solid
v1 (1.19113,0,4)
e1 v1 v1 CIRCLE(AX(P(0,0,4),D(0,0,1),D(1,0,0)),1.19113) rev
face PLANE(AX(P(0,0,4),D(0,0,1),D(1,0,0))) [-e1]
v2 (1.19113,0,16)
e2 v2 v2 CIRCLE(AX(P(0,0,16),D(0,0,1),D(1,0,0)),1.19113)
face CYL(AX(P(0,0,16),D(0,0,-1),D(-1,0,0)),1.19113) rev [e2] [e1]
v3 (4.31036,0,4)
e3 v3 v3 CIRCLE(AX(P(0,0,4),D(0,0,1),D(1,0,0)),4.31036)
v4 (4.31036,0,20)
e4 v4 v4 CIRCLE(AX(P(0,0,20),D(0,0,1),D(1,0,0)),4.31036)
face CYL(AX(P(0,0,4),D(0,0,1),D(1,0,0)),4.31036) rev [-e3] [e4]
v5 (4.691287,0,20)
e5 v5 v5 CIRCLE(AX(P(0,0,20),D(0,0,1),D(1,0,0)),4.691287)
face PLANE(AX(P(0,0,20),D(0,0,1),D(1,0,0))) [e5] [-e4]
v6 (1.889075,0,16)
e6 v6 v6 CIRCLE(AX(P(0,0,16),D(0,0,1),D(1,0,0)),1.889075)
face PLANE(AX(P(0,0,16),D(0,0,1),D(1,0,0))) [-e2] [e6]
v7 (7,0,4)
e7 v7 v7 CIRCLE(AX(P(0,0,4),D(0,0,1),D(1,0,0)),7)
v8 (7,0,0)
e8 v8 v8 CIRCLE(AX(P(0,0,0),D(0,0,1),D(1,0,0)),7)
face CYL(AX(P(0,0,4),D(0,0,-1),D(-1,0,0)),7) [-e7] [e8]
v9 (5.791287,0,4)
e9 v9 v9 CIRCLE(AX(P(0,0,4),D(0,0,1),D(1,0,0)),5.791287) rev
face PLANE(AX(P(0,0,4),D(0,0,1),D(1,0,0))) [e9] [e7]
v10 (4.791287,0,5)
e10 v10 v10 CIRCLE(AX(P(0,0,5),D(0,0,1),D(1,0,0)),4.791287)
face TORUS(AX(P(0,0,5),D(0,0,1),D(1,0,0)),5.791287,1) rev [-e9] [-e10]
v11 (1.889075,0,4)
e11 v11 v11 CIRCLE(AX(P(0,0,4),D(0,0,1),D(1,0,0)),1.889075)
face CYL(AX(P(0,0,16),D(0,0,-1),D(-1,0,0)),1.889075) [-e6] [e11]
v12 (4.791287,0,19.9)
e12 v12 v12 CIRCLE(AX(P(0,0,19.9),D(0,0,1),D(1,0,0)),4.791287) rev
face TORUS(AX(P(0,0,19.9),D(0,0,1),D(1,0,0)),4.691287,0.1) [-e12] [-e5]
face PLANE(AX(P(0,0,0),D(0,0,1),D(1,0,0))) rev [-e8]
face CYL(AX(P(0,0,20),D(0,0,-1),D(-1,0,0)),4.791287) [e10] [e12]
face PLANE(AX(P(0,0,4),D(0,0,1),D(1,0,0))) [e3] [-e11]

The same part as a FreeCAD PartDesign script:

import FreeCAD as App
import Part
import Sketcher

V = App.Vector


def edges_at(feature, points):
    """Names of the edges that pass closest to the given points."""
    edges = feature.Shape.Edges
    near = lambda p: min(range(len(edges)), key=lambda i: edges[i].distToShape(Part.Vertex(*p))[0])
    return sorted({f"Edge{near(p) + 1}" for p in points})

doc = App.newDocument("Part")
body = doc.addObject("PartDesign::Body", "Body")

sketch1 = body.newObject("Sketcher::SketchObject", "Sketch")
sketch1.AttachmentSupport = (doc.getObject("XY_Plane"), [""])
sketch1.MapMode = "FlatFace"
sketch1.addGeometry(Part.Circle(V(0, 0, 0), V(0, 0, 1), 7), False)
sketch1.addConstraint([
    Sketcher.Constraint("Coincident", 0, 3, -1, 1),
    Sketcher.Constraint("Diameter", 0, 14.0),
])
pad1 = body.newObject("PartDesign::Pad", "Pad")
pad1.Profile = sketch1
pad1.Length = 4

sketch2 = body.newObject("Sketcher::SketchObject", "Sketch001")
sketch2.AttachmentSupport = (doc.getObject("XY_Plane"), [""])
sketch2.MapMode = "FlatFace"
sketch2.AttachmentOffset = App.Placement(V(0, 0, 4), App.Rotation())
sketch2.addGeometry(Part.Circle(V(0, 0, 0), V(0, 0, 1), 4.8), False)
sketch2.addConstraint([
    Sketcher.Constraint("Coincident", 0, 3, -1, 1),
    Sketcher.Constraint("Diameter", 0, 9.582575),
])
pad2 = body.newObject("PartDesign::Pad", "Pad001")
pad2.Profile = sketch2
pad2.Length = 16

sketch3 = body.newObject("Sketcher::SketchObject", "Sketch002")
sketch3.AttachmentSupport = (doc.getObject("XY_Plane"), [""])
sketch3.MapMode = "FlatFace"
sketch3.AttachmentOffset = App.Placement(V(0, 0, 20), App.Rotation())
sketch3.addGeometry(Part.Circle(V(0, 0, 0), V(0, 0, 1), 4.3), False)
sketch3.addConstraint([
    Sketcher.Constraint("Coincident", 0, 3, -1, 1),
    Sketcher.Constraint("Diameter", 0, 8.62072),
])
pocket1 = body.newObject("PartDesign::Pocket", "Pocket")
pocket1.Profile = sketch3
pocket1.Length = 16

sketch4 = body.newObject("Sketcher::SketchObject", "Sketch003")
sketch4.AttachmentSupport = (doc.getObject("XY_Plane"), [""])
sketch4.MapMode = "FlatFace"
sketch4.AttachmentOffset = App.Placement(V(0, 0, 4), App.Rotation())
sketch4.addGeometry([
    Part.Circle(V(0, 0, 0), V(0, 0, 1), 1.9),
    Part.Circle(V(0, 0, 0), V(0, 0, 1), 1.2),
], False)
sketch4.addConstraint([
    Sketcher.Constraint("Coincident", 0, 3, -1, 1),
    Sketcher.Constraint("Coincident", 1, 3, -1, 1),
    Sketcher.Constraint("Diameter", 0, 3.778151),
    Sketcher.Constraint("Diameter", 1, 2.38226),
])
pad3 = body.newObject("PartDesign::Pad", "Pad002")
pad3.Profile = sketch4
pad3.Length = 12
doc.recompute()

fillet = body.newObject("PartDesign::Fillet", "Fillet")
fillet.Base = (pad3, edges_at(pad3, [(-4.791, 0, 4)]))
fillet.Radius = 1
doc.recompute()

fillet2 = body.newObject("PartDesign::Fillet", "Fillet001")
fillet2.Base = (fillet, edges_at(fillet, [(-4.791, 0, 20)]))
fillet2.Radius = 0.1

doc.recompute()
